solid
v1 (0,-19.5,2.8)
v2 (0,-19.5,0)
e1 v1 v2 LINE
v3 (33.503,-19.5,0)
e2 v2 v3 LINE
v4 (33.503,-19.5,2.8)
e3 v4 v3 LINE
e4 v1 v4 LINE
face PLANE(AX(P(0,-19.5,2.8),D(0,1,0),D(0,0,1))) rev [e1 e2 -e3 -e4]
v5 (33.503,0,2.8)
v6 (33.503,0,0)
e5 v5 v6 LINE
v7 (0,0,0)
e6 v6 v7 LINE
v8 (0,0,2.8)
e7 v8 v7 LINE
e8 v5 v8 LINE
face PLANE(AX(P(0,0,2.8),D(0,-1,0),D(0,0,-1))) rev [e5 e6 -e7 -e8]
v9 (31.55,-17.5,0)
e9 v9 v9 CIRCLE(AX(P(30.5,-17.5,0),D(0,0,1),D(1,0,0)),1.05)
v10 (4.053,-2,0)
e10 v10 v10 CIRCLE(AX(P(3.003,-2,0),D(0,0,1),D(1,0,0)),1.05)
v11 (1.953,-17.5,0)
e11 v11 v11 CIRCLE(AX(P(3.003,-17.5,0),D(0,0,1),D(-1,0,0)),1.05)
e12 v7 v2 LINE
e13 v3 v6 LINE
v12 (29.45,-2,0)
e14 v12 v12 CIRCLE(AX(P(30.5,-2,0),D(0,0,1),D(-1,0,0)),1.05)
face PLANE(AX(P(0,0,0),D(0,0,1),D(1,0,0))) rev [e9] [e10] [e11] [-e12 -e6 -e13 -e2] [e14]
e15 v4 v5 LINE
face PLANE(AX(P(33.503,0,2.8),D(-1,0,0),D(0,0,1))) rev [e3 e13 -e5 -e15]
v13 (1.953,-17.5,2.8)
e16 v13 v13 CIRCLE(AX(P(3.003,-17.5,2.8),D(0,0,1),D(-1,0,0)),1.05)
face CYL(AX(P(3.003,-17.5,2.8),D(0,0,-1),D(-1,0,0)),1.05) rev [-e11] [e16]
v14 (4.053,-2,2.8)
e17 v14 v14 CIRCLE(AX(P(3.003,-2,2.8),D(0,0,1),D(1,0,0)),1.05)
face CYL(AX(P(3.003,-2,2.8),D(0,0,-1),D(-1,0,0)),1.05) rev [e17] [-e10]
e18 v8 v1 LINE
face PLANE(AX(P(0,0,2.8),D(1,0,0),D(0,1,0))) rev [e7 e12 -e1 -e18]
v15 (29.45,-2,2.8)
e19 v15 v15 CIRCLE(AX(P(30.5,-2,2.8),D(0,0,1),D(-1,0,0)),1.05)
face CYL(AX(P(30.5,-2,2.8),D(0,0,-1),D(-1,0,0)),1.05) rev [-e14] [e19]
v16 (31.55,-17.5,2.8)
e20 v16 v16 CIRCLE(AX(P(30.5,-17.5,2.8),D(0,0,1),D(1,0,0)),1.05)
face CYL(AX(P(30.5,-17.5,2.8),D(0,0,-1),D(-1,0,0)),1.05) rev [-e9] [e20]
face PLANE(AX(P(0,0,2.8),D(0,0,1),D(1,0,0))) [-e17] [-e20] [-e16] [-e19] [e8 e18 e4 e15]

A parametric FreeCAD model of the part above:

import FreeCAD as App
import Part
import Sketcher

V = App.Vector

doc = App.newDocument("Part")
body = doc.addObject("PartDesign::Body", "Body")

sketch1 = body.newObject("Sketcher::SketchObject", "Sketch")
sketch1.AttachmentSupport = (doc.getObject("XY_Plane"), [""])
sketch1.MapMode = "FlatFace"
sketch1.addGeometry(Part.LineSegment(V(0, 0, 0), V(0, -19.5, 0)), False)
sketch1.addGeometry(Part.LineSegment(V(0, -19.5, 0), V(33.5, -19.5, 0)), False)
sketch1.addGeometry(Part.LineSegment(V(33.5, -19.5, 0), V(33.5, 0, 0)), False)
sketch1.addGeometry(Part.LineSegment(V(33.5, 0, 0), V(0, 0, 0)), False)
sketch1.addGeometry(Part.Circle(V(3, -17.5, 0), V(0, 0, 1), 1.1), False)
sketch1.addGeometry(Part.Circle(V(30.5, -17.5, 0), V(0, 0, 1), 1.1), False)
sketch1.addGeometry(Part.Circle(V(3, -2, 0), V(0, 0, 1), 1.1), False)
sketch1.addGeometry(Part.Circle(V(30.5, -2, 0), V(0, 0, 1), 1.1), False)
sketch1.addConstraint(Sketcher.Constraint("Coincident", 0, 2, 1, 1))
sketch1.addConstraint(Sketcher.Constraint("Coincident", 1, 2, 2, 1))
sketch1.addConstraint(Sketcher.Constraint("Coincident", 2, 2, 3, 1))
sketch1.addConstraint(Sketcher.Constraint("Coincident", 3, 2, 0, 1))
sketch1.addConstraint(Sketcher.Constraint("Vertical", 0))
sketch1.addConstraint(Sketcher.Constraint("Horizontal", 1))
sketch1.addConstraint(Sketcher.Constraint("Vertical", 2))
sketch1.addConstraint(Sketcher.Constraint("Horizontal", 3))
sketch1.addConstraint(Sketcher.Constraint("Coincident", 3, 2, -1, 1))
sketch1.addConstraint(Sketcher.Constraint("Equal", 4, 5))
sketch1.addConstraint(Sketcher.Constraint("Equal", 5, 6))
sketch1.addConstraint(Sketcher.Constraint("Equal", 6, 7))
sketch1.addConstraint(Sketcher.Constraint("Horizontal", 4, 3, 5, 3))
sketch1.addConstraint(Sketcher.Constraint("Horizontal", 6, 3, 7, 3))
sketch1.addConstraint(Sketcher.Constraint("Vertical", 4, 3, 6, 3))
sketch1.addConstraint(Sketcher.Constraint("Vertical", 5, 3, 7, 3))
sketch1.addConstraint(Sketcher.Constraint("Diameter", 4, 2.1))
sketch1.addConstraint(Sketcher.Constraint("DistanceY", 0, 2, 0, 1, 19.5))
sketch1.addConstraint(Sketcher.Constraint("DistanceY", 6, 3, -1, 1, 2.0))
sketch1.addConstraint(Sketcher.Constraint("DistanceY", 0, 2, 4, 3, 2.0))
sketch1.addConstraint(Sketcher.Constraint("DistanceX", -1, 1, 5, 3, 30.5))
sketch1.addConstraint(Sketcher.Constraint("DistanceX", 4, 3, 1, 2, 30.5))
sketch1.addConstraint(Sketcher.Constraint("DistanceX", 1, 1, 1, 2, 33.503))
pad1 = body.newObject("PartDesign::Pad", "Pad")
pad1.Profile = sketch1
pad1.Length = 2.8

doc.recompute()
